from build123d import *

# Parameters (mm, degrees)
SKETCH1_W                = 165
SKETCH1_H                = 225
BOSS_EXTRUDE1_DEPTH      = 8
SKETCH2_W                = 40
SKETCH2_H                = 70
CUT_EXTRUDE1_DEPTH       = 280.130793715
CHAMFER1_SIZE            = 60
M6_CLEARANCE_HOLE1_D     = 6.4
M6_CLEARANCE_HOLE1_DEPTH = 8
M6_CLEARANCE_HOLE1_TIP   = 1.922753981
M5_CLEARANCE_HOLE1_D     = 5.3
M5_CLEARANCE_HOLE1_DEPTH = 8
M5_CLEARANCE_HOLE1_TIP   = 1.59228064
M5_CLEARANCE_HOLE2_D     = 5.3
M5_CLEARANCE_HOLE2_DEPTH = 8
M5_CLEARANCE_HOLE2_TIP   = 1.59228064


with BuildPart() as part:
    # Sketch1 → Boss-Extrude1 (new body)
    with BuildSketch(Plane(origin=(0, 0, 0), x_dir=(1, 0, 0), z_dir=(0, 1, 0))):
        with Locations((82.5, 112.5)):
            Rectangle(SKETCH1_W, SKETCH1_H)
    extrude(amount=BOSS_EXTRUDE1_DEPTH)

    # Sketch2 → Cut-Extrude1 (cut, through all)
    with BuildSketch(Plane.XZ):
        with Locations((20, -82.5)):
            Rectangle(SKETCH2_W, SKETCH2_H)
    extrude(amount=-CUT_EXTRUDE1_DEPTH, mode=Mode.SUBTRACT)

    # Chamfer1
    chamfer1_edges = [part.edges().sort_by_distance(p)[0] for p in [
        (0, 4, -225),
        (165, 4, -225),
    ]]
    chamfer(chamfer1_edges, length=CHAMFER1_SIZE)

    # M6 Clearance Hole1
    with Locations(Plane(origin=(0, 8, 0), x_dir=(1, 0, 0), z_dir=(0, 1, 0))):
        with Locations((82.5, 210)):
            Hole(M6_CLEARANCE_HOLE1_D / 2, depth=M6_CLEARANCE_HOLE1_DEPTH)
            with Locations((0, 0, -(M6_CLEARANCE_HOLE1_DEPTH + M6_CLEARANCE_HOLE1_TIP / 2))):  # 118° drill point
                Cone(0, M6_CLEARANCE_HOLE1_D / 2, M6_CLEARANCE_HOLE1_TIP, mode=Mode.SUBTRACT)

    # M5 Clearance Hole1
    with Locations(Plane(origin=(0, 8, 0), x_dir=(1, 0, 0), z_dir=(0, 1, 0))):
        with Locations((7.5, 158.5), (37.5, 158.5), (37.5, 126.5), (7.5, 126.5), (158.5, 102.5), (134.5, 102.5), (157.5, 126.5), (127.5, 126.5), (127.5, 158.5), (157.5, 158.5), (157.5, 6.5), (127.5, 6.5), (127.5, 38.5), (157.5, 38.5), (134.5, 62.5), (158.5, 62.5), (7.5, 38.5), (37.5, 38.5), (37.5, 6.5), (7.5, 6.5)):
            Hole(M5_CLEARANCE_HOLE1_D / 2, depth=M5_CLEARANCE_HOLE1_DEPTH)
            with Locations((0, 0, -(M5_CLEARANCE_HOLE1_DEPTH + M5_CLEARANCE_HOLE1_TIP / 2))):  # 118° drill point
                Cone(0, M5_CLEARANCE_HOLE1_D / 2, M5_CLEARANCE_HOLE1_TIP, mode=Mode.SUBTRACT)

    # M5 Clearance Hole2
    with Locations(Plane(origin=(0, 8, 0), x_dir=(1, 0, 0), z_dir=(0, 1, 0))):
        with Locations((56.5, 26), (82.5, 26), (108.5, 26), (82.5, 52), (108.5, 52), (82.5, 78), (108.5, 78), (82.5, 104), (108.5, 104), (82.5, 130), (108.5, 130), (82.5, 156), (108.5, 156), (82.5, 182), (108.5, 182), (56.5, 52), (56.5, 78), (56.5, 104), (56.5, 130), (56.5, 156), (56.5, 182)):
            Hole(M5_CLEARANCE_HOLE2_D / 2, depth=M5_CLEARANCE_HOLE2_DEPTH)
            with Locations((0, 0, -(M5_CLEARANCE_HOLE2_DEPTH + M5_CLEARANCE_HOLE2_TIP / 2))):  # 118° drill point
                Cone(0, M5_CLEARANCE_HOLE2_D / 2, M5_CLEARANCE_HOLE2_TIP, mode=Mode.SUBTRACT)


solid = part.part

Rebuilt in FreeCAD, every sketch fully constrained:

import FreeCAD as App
import Part
import Sketcher

V = App.Vector
Q = App.Units.Quantity


def edges_at(feature, points):
    """Names of the edges that pass closest to the given points."""
    edges = feature.Shape.Edges
    near = lambda p: min(range(len(edges)), key=lambda i: edges[i].distToShape(Part.Vertex(*p))[0])
    return sorted({f"Edge{near(p) + 1}" for p in points})

doc = App.newDocument("Part")
body = doc.addObject("PartDesign::Body", "Body")

sketch1 = doc.addObject("Sketcher::SketchObject", "Sketch")
body.addObject(sketch1)
sketch1.AttachmentSupport = (doc.XZ_Plane, [""])
sketch1.MapMode = "FlatFace"
sketch1.addGeometry([
    Part.LineSegment(V(0, -225, 0), V(0, 0, 0)),
    Part.LineSegment(V(0, 0, 0), V(165, 0, 0)),
    Part.LineSegment(V(165, 0, 0), V(165, -225, 0)),
    Part.LineSegment(V(165, -225, 0), V(0, -225, 0)),
], False)
sketch1.addConstraint([
    Sketcher.Constraint("Coincident", 0, 2, 1, 1),
    Sketcher.Constraint("Coincident", 1, 2, 2, 1),
    Sketcher.Constraint("Coincident", 2, 2, 3, 1),
    Sketcher.Constraint("Coincident", 3, 2, 0, 1),
    Sketcher.Constraint("Vertical", 0),
    Sketcher.Constraint("Horizontal", 1),
    Sketcher.Constraint("Vertical", 2),
    Sketcher.Constraint("Horizontal", 3),
    Sketcher.Constraint("Coincident", 0, 2, -1, 1),
    Sketcher.Constraint("DistanceX", 1, 1, 1, 2, Q("165 mm")),
    Sketcher.Constraint("DistanceY", 0, 1, 0, 2, Q("225 mm")),
])
pad1 = doc.addObject("PartDesign::Pad", "Pad")
body.addObject(pad1)
pad1.Profile = sketch1
pad1.Length = 8
pad1.Reversed = True

sketch2 = doc.addObject("Sketcher::SketchObject", "Sketch001")
body.addObject(sketch2)
sketch2.AttachmentSupport = (doc.XZ_Plane, [""])
sketch2.MapMode = "FlatFace"
sketch2.addGeometry([
    Part.LineSegment(V(0, -48, 0), V(0, -118, 0)),
    Part.LineSegment(V(0, -118, 0), V(40, -118, 0)),
    Part.LineSegment(V(40, -118, 0), V(40, -48, 0)),
    Part.LineSegment(V(40, -48, 0), V(0, -48, 0)),
], False)
sketch2.addConstraint([
    Sketcher.Constraint("Coincident", 0, 2, 1, 1),
    Sketcher.Constraint("Coincident", 1, 2, 2, 1),
    Sketcher.Constraint("Coincident", 2, 2, 3, 1),
    Sketcher.Constraint("Coincident", 3, 2, 0, 1),
    Sketcher.Constraint("Vertical", 0),
    Sketcher.Constraint("Horizontal", 1),
    Sketcher.Constraint("Vertical", 2),
    Sketcher.Constraint("Horizontal", 3),
    Sketcher.Constraint("PointOnObject", 0, 2, -2),
    Sketcher.Constraint("DistanceX", 1, 1, 1, 2, Q("40 mm")),
    Sketcher.Constraint("DistanceY", 0, 2, 0, 1, Q("70 mm")),
    Sketcher.Constraint("DistanceY", 0, 2, -1, 1, Q("117.5 mm")),
])
pocket1 = doc.addObject("PartDesign::Pocket", "Pocket")
body.addObject(pocket1)
pocket1.Profile = sketch2
pocket1.Type = "ThroughAll"
doc.recompute()

chamfer = doc.addObject("PartDesign::Chamfer", "Chamfer")
body.addObject(chamfer)
chamfer.Base = (pocket1, edges_at(pocket1, [(0, 4, -225), (165, 4, -225)]))
chamfer.Size = 60

sketch3 = doc.addObject("Sketcher::SketchObject", "Sketch002")
body.addObject(sketch3)
sketch3.AttachmentSupport = (doc.XZ_Plane, [""])
sketch3.MapMode = "FlatFace"
sketch3.AttachmentOffset = App.Placement(V(0, 0, -8), App.Rotation())
sketch3.addGeometry(Part.Circle(V(82.5, -210, 0), V(0, 0, 1), 3.2), False)
sketch3.addConstraint([
    Sketcher.Constraint("Diameter", 0, Q("6.4 mm")),
    Sketcher.Constraint("DistanceY", 0, 3, -1, 1, Q("210 mm")),
    Sketcher.Constraint("DistanceX", -1, 1, 0, 3, Q("82.5 mm")),
])
doc.recompute()
hole = doc.addObject("PartDesign::Hole", "Hole")
body.addObject(hole)
hole.Profile = sketch3
hole.ThreadType = "None"
hole.Diameter = 6.4
hole.DepthType = "Dimension"
hole.Depth = 8
hole.DrillPoint = "Angled"
hole.DrillPointAngle = 118
hole.Reversed = True

sketch4 = doc.addObject("Sketcher::SketchObject", "Sketch003")
body.addObject(sketch4)
sketch4.AttachmentSupport = (doc.XZ_Plane, [""])
sketch4.MapMode = "FlatFace"
sketch4.AttachmentOffset = App.Placement(V(0, 0, -8), App.Rotation())
sketch4.addGeometry([
    Part.Circle(V(7.5, -158.5, 0), V(0, 0, 1), 2.6),
    Part.Circle(V(37.5, -158.5, 0), V(0, 0, 1), 2.6),
    Part.Circle(V(37.5, -126.5, 0), V(0, 0, 1), 2.6),
    Part.Circle(V(7.5, -126.5, 0), V(0, 0, 1), 2.6),
    Part.Circle(V(158.5, -102.5, 0), V(0, 0, 1), 2.6),
    Part.Circle(V(134.5, -102.5, 0), V(0, 0, 1), 2.6),
    Part.Circle(V(157.5, -126.5, 0), V(0, 0, 1), 2.6),
    Part.Circle(V(127.5, -126.5, 0), V(0, 0, 1), 2.6),
    Part.Circle(V(127.5, -158.5, 0), V(0, 0, 1), 2.6),
    Part.Circle(V(157.5, -158.5, 0), V(0, 0, 1), 2.6),
    Part.Circle(V(157.5, -6.5, 0), V(0, 0, 1), 2.6),
    Part.Circle(V(127.5, -6.5, 0), V(0, 0, 1), 2.6),
    Part.Circle(V(127.5, -38.5, 0), V(0, 0, 1), 2.6),
    Part.Circle(V(157.5, -38.5, 0), V(0, 0, 1), 2.6),
    Part.Circle(V(134.5, -62.5, 0), V(0, 0, 1), 2.6),
    Part.Circle(V(158.5, -62.5, 0), V(0, 0, 1), 2.6),
    Part.Circle(V(7.5, -38.5, 0), V(0, 0, 1), 2.6),
    Part.Circle(V(37.5, -38.5, 0), V(0, 0, 1), 2.6),
    Part.Circle(V(37.5, -6.5, 0), V(0, 0, 1), 2.6),
    Part.Circle(V(7.5, -6.5, 0), V(0, 0, 1), 2.6),
], False)
sketch4.addConstraint([
    Sketcher.Constraint("Equal", 0, 1),
    Sketcher.Constraint("Equal", 1, 2),
    Sketcher.Constraint("Equal", 2, 3),
    Sketcher.Constraint("Equal", 3, 4),
    Sketcher.Constraint("Equal", 4, 5),
    Sketcher.Constraint("Equal", 5, 6),
    Sketcher.Constraint("Equal", 6, 7),
    Sketcher.Constraint("Equal", 7, 8),
    Sketcher.Constraint("Equal", 8, 9),
    Sketcher.Constraint("Equal", 9, 10),
    Sketcher.Constraint("Equal", 10, 11),
    Sketcher.Constraint("Equal", 11, 12),
    Sketcher.Constraint("Equal", 12, 13),
    Sketcher.Constraint("Equal", 13, 14),
    Sketcher.Constraint("Equal", 14, 15),
    Sketcher.Constraint("Equal", 15, 16),
    Sketcher.Constraint("Equal", 16, 17),
    Sketcher.Constraint("Equal", 17, 18),
    Sketcher.Constraint("Equal", 18, 19),
    Sketcher.Constraint("Horizontal", 0, 3, 1, 3),
    Sketcher.Constraint("Horizontal", 2, 3, 3, 3),
    Sketcher.Constraint("Horizontal", 4, 3, 5, 3),
    Sketcher.Constraint("Horizontal", 3, 3, 6, 3),
    Sketcher.Constraint("Horizontal", 6, 3, 7, 3),
    Sketcher.Constraint("Horizontal", 1, 3, 8, 3),
    Sketcher.Constraint("Horizontal", 8, 3, 9, 3),
    Sketcher.Constraint("Horizontal", 10, 3, 11, 3),
    Sketcher.Constraint("Horizontal", 12, 3, 13, 3),
    Sketcher.Constraint("Horizontal", 14, 3, 15, 3),
    Sketcher.Constraint("Horizontal", 13, 3, 16, 3),
    Sketcher.Constraint("Horizontal", 16, 3, 17, 3),
    Sketcher.Constraint("Horizontal", 11, 3, 18, 3),
    Sketcher.Constraint("Horizontal", 18, 3, 19, 3),
    Sketcher.Constraint("Vertical", 1, 3, 2, 3),
    Sketcher.Constraint("Vertical", 0, 3, 3, 3),
    Sketcher.Constraint("Vertical", 7, 3, 8, 3),
    Sketcher.Constraint("Vertical", 6, 3, 9, 3),
    Sketcher.Constraint("Vertical", 9, 3, 10, 3),
    Sketcher.Constraint("Vertical", 8, 3, 11, 3),
    Sketcher.Constraint("Vertical", 11, 3, 12, 3),
    Sketcher.Constraint("Vertical", 10, 3, 13, 3),
    Sketcher.Constraint("Vertical", 5, 3, 14, 3),
    Sketcher.Constraint("Vertical", 4, 3, 15, 3),
    Sketcher.Constraint("Vertical", 3, 3, 16, 3),
    Sketcher.Constraint("Vertical", 2, 3, 17, 3),
    Sketcher.Constraint("Vertical", 17, 3, 18, 3),
    Sketcher.Constraint("Vertical", 16, 3, 19, 3),
    Sketcher.Constraint("Diameter", 0, Q("5.3 mm")),
    Sketcher.Constraint("DistanceX", 0, 3, 1, 3, Q("30 mm")),
    Sketcher.Constraint("DistanceY", 1, 3, 2, 3, Q("32 mm")),
    Sketcher.Constraint("DistanceX", 2, 3, 4, 3, Q("121 mm")),
    Sketcher.Constraint("DistanceY", 2, 3, 4, 3, Q("24 mm")),
    Sketcher.Constraint("DistanceX", 5, 3, 4, 3, Q("24 mm")),
    Sketcher.Constraint("DistanceX", 6, 3, 4, 3, Q("1 mm")),
    Sketcher.Constraint("DistanceX", 7, 3, 5, 3, Q("7 mm")),
    Sketcher.Constraint("DistanceY", 4, 3, 10, 3, Q("96 mm")),
    Sketcher.Constraint("DistanceY", 12, 3, 11, 3, Q("32 mm")),
    Sketcher.Constraint("DistanceY", 14, 3, 12, 3, Q("24 mm")),
    Sketcher.Constraint("DistanceX", -1, 1, 0, 3, Q("7.5 mm")),
    Sketcher.Constraint("DistanceY", 0, 3, -1, 1, Q("158.5 mm")),
])
doc.recompute()
hole2 = doc.addObject("PartDesign::Hole", "Hole001")
body.addObject(hole2)
hole2.Profile = sketch4
hole2.ThreadType = "None"
hole2.Diameter = 5.3
hole2.DepthType = "Dimension"
hole2.Depth = 8
hole2.DrillPoint = "Angled"
hole2.DrillPointAngle = 118
hole2.Reversed = True

sketch5 = doc.addObject("Sketcher::SketchObject", "Sketch004")
body.addObject(sketch5)
sketch5.AttachmentSupport = (doc.XZ_Plane, [""])
sketch5.MapMode = "FlatFace"
sketch5.AttachmentOffset = App.Placement(V(0, 0, -8), App.Rotation())
sketch5.addGeometry([
    Part.Circle(V(56.5, -26, 0), V(0, 0, 1), 2.6),
    Part.Circle(V(82.5, -26, 0), V(0, 0, 1), 2.6),
    Part.Circle(V(108.5, -26, 0), V(0, 0, 1), 2.6),
    Part.Circle(V(82.5, -52, 0), V(0, 0, 1), 2.6),
    Part.Circle(V(108.5, -52, 0), V(0, 0, 1), 2.6),
    Part.Circle(V(82.5, -78, 0), V(0, 0, 1), 2.6),
    Part.Circle(V(108.5, -78, 0), V(0, 0, 1), 2.6),
    Part.Circle(V(82.5, -104, 0), V(0, 0, 1), 2.6),
    Part.Circle(V(108.5, -104, 0), V(0, 0, 1), 2.6),
    Part.Circle(V(82.5, -130, 0), V(0, 0, 1), 2.6),
    Part.Circle(V(108.5, -130, 0), V(0, 0, 1), 2.6),
    Part.Circle(V(82.5, -156, 0), V(0, 0, 1), 2.6),
    Part.Circle(V(108.5, -156, 0), V(0, 0, 1), 2.6),
    Part.Circle(V(82.5, -182, 0), V(0, 0, 1), 2.6),
    Part.Circle(V(108.5, -182, 0), V(0, 0, 1), 2.6),
    Part.Circle(V(56.5, -52, 0), V(0, 0, 1), 2.6),
    Part.Circle(V(56.5, -78, 0), V(0, 0, 1), 2.6),
    Part.Circle(V(56.5, -104, 0), V(0, 0, 1), 2.6),
    Part.Circle(V(56.5, -130, 0), V(0, 0, 1), 2.6),
    Part.Circle(V(56.5, -156, 0), V(0, 0, 1), 2.6),
    Part.Circle(V(56.5, -182, 0), V(0, 0, 1), 2.6),
], False)
sketch5.addConstraint([
    Sketcher.Constraint("Equal", 0, 1),
    Sketcher.Constraint("Equal", 1, 2),
    Sketcher.Constraint("Equal", 2, 3),
    Sketcher.Constraint("Equal", 3, 4),
    Sketcher.Constraint("Equal", 4, 5),
    Sketcher.Constraint("Equal", 5, 6),
    Sketcher.Constraint("Equal", 6, 7),
    Sketcher.Constraint("Equal", 7, 8),
    Sketcher.Constraint("Equal", 8, 9),
    Sketcher.Constraint("Equal", 9, 10),
    Sketcher.Constraint("Equal", 10, 11),
    Sketcher.Constraint("Equal", 11, 12),
    Sketcher.Constraint("Equal", 12, 13),
    Sketcher.Constraint("Equal", 13, 14),
    Sketcher.Constraint("Equal", 14, 15),
    Sketcher.Constraint("Equal", 15, 16),
    Sketcher.Constraint("Equal", 16, 17),
    Sketcher.Constraint("Equal", 17, 18),
    Sketcher.Constraint("Equal", 18, 19),
    Sketcher.Constraint("Equal", 19, 20),
    Sketcher.Constraint("Horizontal", 0, 3, 1, 3),
    Sketcher.Constraint("Horizontal", 1, 3, 2, 3),
    Sketcher.Constraint("Horizontal", 3, 3, 4, 3),
    Sketcher.Constraint("Horizontal", 5, 3, 6, 3),
    Sketcher.Constraint("Horizontal", 7, 3, 8, 3),
    Sketcher.Constraint("Horizontal", 9, 3, 10, 3),
    Sketcher.Constraint("Horizontal", 11, 3, 12, 3),
    Sketcher.Constraint("Horizontal", 13, 3, 14, 3),
    Sketcher.Constraint("Horizontal", 4, 3, 15, 3),
    Sketcher.Constraint("Horizontal", 6, 3, 16, 3),
    Sketcher.Constraint("Horizontal", 8, 3, 17, 3),
    Sketcher.Constraint("Horizontal", 10, 3, 18, 3),
    Sketcher.Constraint("Horizontal", 12, 3, 19, 3),
    Sketcher.Constraint("Horizontal", 14, 3, 20, 3),
    Sketcher.Constraint("Vertical", 1, 3, 3, 3),
    Sketcher.Constraint("Vertical", 2, 3, 4, 3),
    Sketcher.Constraint("Vertical", 3, 3, 5, 3),
    Sketcher.Constraint("Vertical", 4, 3, 6, 3),
    Sketcher.Constraint("Vertical", 5, 3, 7, 3),
    Sketcher.Constraint("Vertical", 6, 3, 8, 3),
    Sketcher.Constraint("Vertical", 7, 3, 9, 3),
    Sketcher.Constraint("Vertical", 8, 3, 10, 3),
    Sketcher.Constraint("Vertical", 9, 3, 11, 3),
    Sketcher.Constraint("Vertical", 10, 3, 12, 3),
    Sketcher.Constraint("Vertical", 11, 3, 13, 3),
    Sketcher.Constraint("Vertical", 12, 3, 14, 3),
    Sketcher.Constraint("Vertical", 0, 3, 15, 3),
    Sketcher.Constraint("Vertical", 15, 3, 16, 3),
    Sketcher.Constraint("Vertical", 16, 3, 17, 3),
    Sketcher.Constraint("Vertical", 17, 3, 18, 3),
    Sketcher.Constraint("Vertical", 18, 3, 19, 3),
    Sketcher.Constraint("Vertical", 19, 3, 20, 3),
    Sketcher.Constraint("Diameter", 0, Q("5.3 mm")),
    Sketcher.Constraint("DistanceY", 0, 3, -1, 1, Q("26 mm")),
    Sketcher.Constraint("DistanceY", 3, 3, -1, 1, Q("52 mm")),
    Sketcher.Constraint("DistanceY", 5, 3, -1, 1, Q("78 mm")),
    Sketcher.Constraint("DistanceY", 7, 3, -1, 1, Q("104 mm")),
    Sketcher.Constraint("DistanceY", 9, 3, -1, 1, Q("130 mm")),
    Sketcher.Constraint("DistanceY", 11, 3, -1, 1, Q("156 mm")),
    Sketcher.Constraint("DistanceY", 13, 3, -1, 1, Q("182 mm")),
    Sketcher.Constraint("DistanceX", 0, 3, 1, 3, Q("26 mm")),
    Sketcher.Constraint("DistanceX", 1, 3, 2, 3, Q("26 mm")),
    Sketcher.Constraint("DistanceX", -1, 1, 0, 3, Q("56.5 mm")),
])
doc.recompute()
hole3 = doc.addObject("PartDesign::Hole", "Hole002")
body.addObject(hole3)
hole3.Profile = sketch5
hole3.ThreadType = "None"
hole3.Diameter = 5.3
hole3.DepthType = "Dimension"
hole3.Depth = 8
hole3.DrillPoint = "Angled"
hole3.DrillPointAngle = 118
hole3.Reversed = True

doc.recompute()
